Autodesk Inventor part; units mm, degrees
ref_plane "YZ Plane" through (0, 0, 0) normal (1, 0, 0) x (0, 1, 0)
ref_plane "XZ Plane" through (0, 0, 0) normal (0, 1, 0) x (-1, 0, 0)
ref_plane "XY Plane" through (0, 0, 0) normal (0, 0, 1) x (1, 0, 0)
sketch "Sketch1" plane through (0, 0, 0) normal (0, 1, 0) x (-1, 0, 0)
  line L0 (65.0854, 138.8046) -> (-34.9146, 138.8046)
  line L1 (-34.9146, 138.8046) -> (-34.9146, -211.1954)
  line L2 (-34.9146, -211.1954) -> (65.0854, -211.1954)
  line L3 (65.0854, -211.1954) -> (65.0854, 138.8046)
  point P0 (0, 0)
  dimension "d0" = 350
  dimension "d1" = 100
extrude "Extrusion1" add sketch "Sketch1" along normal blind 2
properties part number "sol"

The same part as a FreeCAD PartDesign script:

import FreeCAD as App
import Part
import Sketcher
from FreeCAD import Vector
Q = App.Units.Quantity


def add_polygon(sketch, points):
    """Adds a closed chain of lines whose ends are joined by coincident constraints."""
    first, n = sketch.GeometryCount, len(points)
    for a, b in zip(points, points[1:] + points[:1]):
        sketch.addGeometry(Part.LineSegment(App.Vector(*a, 0), App.Vector(*b, 0)), False)
    for i in range(n):
        sketch.addConstraint(Sketcher.Constraint("Coincident", first + i, 2, first + (i + 1) % n, 1))

doc = App.newDocument("Part")
body = doc.addObject("PartDesign::Body", "Body")

# Sketch on XZ plane
sketch1 = body.newObject("Sketcher::SketchObject", "Sketch")
sketch1.AttachmentSupport = (doc.getObject("XZ_Plane"), [""])
sketch1.MapMode = "FlatFace"
add_polygon(sketch1, [(-65, -211), (-65, 139), (35, 139), (35, -211)])  # lines 0-3
sketch1.addConstraint([
    Sketcher.Constraint("Vertical", 0),
    Sketcher.Constraint("Horizontal", 1),
    Sketcher.Constraint("Vertical", 2),
    Sketcher.Constraint("Horizontal", 3),
    Sketcher.Constraint("DistanceX", 1, 1, 1, 2, Q("100 mm")),
    Sketcher.Constraint("DistanceY", 0, 1, 0, 2, Q("350 mm")),
    Sketcher.Constraint("DistanceX", 0, 2, -1, 1, Q("65.0854 mm")),
    Sketcher.Constraint("DistanceY", -1, 1, 0, 2, Q("138.8046 mm")),
])
pad1 = body.newObject("PartDesign::Pad", "Pad")
pad1.Profile = sketch1
pad1.Length = 2
pad1.Reversed = True

doc.recompute()
